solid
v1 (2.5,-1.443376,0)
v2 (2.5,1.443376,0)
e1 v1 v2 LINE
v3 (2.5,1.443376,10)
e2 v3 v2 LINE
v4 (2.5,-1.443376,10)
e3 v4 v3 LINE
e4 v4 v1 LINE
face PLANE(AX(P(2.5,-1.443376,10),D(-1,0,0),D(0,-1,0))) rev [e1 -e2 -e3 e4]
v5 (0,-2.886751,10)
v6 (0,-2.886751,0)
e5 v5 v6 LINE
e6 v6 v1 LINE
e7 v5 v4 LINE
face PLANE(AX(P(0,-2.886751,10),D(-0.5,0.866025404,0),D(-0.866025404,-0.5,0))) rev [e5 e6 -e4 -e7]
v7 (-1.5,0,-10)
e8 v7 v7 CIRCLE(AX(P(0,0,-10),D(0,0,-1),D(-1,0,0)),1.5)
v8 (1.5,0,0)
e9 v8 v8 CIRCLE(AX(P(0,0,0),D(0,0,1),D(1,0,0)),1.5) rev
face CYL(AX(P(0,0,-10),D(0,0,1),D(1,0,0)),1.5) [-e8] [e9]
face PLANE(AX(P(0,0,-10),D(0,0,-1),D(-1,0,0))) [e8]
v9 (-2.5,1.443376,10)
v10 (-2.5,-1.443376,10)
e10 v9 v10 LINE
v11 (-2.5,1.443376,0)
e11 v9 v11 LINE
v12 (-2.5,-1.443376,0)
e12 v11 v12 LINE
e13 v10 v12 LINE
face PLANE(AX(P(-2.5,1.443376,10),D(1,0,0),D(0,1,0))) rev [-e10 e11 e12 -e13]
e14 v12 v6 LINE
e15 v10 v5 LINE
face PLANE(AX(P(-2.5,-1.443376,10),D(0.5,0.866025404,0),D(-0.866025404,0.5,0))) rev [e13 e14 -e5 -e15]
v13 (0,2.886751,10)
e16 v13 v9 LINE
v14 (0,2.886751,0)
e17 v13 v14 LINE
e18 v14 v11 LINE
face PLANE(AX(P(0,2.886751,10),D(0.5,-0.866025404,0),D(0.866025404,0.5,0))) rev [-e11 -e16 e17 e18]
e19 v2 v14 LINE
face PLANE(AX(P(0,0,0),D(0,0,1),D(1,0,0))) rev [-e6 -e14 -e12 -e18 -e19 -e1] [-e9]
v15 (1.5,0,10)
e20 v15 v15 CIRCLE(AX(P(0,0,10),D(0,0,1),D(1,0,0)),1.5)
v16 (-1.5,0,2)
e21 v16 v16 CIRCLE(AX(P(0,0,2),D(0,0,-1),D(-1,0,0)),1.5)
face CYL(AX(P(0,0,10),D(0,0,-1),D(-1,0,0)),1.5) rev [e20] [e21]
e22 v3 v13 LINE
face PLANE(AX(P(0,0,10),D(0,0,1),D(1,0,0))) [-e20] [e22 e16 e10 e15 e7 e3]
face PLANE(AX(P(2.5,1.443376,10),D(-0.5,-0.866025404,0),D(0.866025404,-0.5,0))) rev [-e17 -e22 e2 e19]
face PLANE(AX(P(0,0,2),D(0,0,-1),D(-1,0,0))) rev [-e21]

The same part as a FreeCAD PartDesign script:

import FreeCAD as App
import Part
import Sketcher

V = App.Vector
Q = App.Units.Quantity


def add_polygon(sketch, points):
    """Adds a closed chain of lines whose ends are joined by coincident constraints."""
    first, n = sketch.GeometryCount, len(points)
    for a, b in zip(points, points[1:] + points[:1]):
        sketch.addGeometry(Part.LineSegment(App.Vector(*a, 0), App.Vector(*b, 0)), False)
    for i in range(n):
        sketch.addConstraint(Sketcher.Constraint("Coincident", first + i, 2, first + (i + 1) % n, 1))

doc = App.newDocument("Part")
body = doc.addObject("PartDesign::Body", "Body")

# Sketch on XY plane
sketch1 = doc.addObject("Sketcher::SketchObject", "Sketch")
body.addObject(sketch1)
sketch1.AttachmentSupport = (doc.XY_Plane, [""])
sketch1.MapMode = "FlatFace"
add_polygon(sketch1, [(0, -2.9), (2.5, -1.4), (2.5, 1.4), (0, 2.9), (-2.5, 1.4), (-2.5, -1.4)])  # lines 0-5
sketch1.addGeometry(Part.Circle(V(0, 0, 0), V(0, 0, 1), 1.5), False)  # 6
sketch1.addConstraint([
    Sketcher.Constraint("Vertical", 1),
    Sketcher.Constraint("Vertical", 4),
    Sketcher.Constraint("Coincident", 6, 3, -1, 1),
    Sketcher.Constraint("Symmetric", 0, 2, 3, 2, -1, 1),
    Sketcher.Constraint("Symmetric", 2, 2, 5, 2, -1, 1),
    Sketcher.Constraint("PointOnObject", 2, 2, -2),
    Sketcher.Constraint("Parallel", 2, 5),
    Sketcher.Constraint("Horizontal", 1, 2, 3, 2),
    Sketcher.Constraint("Diameter", 6, 3.0),
    Sketcher.Constraint("Angle", 0, Q("30 deg")),
    Sketcher.Constraint("DistanceX", 3, 2, 1, 2, 5.0),
    Sketcher.Constraint("DistanceY", 1, 1, 1, 2, 2.886751),
])
pad1 = doc.addObject("PartDesign::Pad", "Pad")
body.addObject(pad1)
pad1.Profile = sketch1
pad1.Length = 10

# Sketch on XY plane
sketch2 = doc.addObject("Sketcher::SketchObject", "Sketch001")
body.addObject(sketch2)
sketch2.AttachmentSupport = (doc.XY_Plane, [""])
sketch2.MapMode = "FlatFace"
sketch2.addGeometry(Part.Circle(V(0, 0, 0), V(0, 0, 1), 1.5), False)
sketch2.addConstraint([
    Sketcher.Constraint("Coincident", 0, 3, -1, 1),
    Sketcher.Constraint("Diameter", 0, 3.0),
])
pad2 = doc.addObject("PartDesign::Pad", "Pad001")
body.addObject(pad2)
pad2.Profile = sketch2
pad2.Type = "TwoLengths"
pad2.Length = 10
pad2.Length2 = 2
pad2.Reversed = True

doc.recompute()
